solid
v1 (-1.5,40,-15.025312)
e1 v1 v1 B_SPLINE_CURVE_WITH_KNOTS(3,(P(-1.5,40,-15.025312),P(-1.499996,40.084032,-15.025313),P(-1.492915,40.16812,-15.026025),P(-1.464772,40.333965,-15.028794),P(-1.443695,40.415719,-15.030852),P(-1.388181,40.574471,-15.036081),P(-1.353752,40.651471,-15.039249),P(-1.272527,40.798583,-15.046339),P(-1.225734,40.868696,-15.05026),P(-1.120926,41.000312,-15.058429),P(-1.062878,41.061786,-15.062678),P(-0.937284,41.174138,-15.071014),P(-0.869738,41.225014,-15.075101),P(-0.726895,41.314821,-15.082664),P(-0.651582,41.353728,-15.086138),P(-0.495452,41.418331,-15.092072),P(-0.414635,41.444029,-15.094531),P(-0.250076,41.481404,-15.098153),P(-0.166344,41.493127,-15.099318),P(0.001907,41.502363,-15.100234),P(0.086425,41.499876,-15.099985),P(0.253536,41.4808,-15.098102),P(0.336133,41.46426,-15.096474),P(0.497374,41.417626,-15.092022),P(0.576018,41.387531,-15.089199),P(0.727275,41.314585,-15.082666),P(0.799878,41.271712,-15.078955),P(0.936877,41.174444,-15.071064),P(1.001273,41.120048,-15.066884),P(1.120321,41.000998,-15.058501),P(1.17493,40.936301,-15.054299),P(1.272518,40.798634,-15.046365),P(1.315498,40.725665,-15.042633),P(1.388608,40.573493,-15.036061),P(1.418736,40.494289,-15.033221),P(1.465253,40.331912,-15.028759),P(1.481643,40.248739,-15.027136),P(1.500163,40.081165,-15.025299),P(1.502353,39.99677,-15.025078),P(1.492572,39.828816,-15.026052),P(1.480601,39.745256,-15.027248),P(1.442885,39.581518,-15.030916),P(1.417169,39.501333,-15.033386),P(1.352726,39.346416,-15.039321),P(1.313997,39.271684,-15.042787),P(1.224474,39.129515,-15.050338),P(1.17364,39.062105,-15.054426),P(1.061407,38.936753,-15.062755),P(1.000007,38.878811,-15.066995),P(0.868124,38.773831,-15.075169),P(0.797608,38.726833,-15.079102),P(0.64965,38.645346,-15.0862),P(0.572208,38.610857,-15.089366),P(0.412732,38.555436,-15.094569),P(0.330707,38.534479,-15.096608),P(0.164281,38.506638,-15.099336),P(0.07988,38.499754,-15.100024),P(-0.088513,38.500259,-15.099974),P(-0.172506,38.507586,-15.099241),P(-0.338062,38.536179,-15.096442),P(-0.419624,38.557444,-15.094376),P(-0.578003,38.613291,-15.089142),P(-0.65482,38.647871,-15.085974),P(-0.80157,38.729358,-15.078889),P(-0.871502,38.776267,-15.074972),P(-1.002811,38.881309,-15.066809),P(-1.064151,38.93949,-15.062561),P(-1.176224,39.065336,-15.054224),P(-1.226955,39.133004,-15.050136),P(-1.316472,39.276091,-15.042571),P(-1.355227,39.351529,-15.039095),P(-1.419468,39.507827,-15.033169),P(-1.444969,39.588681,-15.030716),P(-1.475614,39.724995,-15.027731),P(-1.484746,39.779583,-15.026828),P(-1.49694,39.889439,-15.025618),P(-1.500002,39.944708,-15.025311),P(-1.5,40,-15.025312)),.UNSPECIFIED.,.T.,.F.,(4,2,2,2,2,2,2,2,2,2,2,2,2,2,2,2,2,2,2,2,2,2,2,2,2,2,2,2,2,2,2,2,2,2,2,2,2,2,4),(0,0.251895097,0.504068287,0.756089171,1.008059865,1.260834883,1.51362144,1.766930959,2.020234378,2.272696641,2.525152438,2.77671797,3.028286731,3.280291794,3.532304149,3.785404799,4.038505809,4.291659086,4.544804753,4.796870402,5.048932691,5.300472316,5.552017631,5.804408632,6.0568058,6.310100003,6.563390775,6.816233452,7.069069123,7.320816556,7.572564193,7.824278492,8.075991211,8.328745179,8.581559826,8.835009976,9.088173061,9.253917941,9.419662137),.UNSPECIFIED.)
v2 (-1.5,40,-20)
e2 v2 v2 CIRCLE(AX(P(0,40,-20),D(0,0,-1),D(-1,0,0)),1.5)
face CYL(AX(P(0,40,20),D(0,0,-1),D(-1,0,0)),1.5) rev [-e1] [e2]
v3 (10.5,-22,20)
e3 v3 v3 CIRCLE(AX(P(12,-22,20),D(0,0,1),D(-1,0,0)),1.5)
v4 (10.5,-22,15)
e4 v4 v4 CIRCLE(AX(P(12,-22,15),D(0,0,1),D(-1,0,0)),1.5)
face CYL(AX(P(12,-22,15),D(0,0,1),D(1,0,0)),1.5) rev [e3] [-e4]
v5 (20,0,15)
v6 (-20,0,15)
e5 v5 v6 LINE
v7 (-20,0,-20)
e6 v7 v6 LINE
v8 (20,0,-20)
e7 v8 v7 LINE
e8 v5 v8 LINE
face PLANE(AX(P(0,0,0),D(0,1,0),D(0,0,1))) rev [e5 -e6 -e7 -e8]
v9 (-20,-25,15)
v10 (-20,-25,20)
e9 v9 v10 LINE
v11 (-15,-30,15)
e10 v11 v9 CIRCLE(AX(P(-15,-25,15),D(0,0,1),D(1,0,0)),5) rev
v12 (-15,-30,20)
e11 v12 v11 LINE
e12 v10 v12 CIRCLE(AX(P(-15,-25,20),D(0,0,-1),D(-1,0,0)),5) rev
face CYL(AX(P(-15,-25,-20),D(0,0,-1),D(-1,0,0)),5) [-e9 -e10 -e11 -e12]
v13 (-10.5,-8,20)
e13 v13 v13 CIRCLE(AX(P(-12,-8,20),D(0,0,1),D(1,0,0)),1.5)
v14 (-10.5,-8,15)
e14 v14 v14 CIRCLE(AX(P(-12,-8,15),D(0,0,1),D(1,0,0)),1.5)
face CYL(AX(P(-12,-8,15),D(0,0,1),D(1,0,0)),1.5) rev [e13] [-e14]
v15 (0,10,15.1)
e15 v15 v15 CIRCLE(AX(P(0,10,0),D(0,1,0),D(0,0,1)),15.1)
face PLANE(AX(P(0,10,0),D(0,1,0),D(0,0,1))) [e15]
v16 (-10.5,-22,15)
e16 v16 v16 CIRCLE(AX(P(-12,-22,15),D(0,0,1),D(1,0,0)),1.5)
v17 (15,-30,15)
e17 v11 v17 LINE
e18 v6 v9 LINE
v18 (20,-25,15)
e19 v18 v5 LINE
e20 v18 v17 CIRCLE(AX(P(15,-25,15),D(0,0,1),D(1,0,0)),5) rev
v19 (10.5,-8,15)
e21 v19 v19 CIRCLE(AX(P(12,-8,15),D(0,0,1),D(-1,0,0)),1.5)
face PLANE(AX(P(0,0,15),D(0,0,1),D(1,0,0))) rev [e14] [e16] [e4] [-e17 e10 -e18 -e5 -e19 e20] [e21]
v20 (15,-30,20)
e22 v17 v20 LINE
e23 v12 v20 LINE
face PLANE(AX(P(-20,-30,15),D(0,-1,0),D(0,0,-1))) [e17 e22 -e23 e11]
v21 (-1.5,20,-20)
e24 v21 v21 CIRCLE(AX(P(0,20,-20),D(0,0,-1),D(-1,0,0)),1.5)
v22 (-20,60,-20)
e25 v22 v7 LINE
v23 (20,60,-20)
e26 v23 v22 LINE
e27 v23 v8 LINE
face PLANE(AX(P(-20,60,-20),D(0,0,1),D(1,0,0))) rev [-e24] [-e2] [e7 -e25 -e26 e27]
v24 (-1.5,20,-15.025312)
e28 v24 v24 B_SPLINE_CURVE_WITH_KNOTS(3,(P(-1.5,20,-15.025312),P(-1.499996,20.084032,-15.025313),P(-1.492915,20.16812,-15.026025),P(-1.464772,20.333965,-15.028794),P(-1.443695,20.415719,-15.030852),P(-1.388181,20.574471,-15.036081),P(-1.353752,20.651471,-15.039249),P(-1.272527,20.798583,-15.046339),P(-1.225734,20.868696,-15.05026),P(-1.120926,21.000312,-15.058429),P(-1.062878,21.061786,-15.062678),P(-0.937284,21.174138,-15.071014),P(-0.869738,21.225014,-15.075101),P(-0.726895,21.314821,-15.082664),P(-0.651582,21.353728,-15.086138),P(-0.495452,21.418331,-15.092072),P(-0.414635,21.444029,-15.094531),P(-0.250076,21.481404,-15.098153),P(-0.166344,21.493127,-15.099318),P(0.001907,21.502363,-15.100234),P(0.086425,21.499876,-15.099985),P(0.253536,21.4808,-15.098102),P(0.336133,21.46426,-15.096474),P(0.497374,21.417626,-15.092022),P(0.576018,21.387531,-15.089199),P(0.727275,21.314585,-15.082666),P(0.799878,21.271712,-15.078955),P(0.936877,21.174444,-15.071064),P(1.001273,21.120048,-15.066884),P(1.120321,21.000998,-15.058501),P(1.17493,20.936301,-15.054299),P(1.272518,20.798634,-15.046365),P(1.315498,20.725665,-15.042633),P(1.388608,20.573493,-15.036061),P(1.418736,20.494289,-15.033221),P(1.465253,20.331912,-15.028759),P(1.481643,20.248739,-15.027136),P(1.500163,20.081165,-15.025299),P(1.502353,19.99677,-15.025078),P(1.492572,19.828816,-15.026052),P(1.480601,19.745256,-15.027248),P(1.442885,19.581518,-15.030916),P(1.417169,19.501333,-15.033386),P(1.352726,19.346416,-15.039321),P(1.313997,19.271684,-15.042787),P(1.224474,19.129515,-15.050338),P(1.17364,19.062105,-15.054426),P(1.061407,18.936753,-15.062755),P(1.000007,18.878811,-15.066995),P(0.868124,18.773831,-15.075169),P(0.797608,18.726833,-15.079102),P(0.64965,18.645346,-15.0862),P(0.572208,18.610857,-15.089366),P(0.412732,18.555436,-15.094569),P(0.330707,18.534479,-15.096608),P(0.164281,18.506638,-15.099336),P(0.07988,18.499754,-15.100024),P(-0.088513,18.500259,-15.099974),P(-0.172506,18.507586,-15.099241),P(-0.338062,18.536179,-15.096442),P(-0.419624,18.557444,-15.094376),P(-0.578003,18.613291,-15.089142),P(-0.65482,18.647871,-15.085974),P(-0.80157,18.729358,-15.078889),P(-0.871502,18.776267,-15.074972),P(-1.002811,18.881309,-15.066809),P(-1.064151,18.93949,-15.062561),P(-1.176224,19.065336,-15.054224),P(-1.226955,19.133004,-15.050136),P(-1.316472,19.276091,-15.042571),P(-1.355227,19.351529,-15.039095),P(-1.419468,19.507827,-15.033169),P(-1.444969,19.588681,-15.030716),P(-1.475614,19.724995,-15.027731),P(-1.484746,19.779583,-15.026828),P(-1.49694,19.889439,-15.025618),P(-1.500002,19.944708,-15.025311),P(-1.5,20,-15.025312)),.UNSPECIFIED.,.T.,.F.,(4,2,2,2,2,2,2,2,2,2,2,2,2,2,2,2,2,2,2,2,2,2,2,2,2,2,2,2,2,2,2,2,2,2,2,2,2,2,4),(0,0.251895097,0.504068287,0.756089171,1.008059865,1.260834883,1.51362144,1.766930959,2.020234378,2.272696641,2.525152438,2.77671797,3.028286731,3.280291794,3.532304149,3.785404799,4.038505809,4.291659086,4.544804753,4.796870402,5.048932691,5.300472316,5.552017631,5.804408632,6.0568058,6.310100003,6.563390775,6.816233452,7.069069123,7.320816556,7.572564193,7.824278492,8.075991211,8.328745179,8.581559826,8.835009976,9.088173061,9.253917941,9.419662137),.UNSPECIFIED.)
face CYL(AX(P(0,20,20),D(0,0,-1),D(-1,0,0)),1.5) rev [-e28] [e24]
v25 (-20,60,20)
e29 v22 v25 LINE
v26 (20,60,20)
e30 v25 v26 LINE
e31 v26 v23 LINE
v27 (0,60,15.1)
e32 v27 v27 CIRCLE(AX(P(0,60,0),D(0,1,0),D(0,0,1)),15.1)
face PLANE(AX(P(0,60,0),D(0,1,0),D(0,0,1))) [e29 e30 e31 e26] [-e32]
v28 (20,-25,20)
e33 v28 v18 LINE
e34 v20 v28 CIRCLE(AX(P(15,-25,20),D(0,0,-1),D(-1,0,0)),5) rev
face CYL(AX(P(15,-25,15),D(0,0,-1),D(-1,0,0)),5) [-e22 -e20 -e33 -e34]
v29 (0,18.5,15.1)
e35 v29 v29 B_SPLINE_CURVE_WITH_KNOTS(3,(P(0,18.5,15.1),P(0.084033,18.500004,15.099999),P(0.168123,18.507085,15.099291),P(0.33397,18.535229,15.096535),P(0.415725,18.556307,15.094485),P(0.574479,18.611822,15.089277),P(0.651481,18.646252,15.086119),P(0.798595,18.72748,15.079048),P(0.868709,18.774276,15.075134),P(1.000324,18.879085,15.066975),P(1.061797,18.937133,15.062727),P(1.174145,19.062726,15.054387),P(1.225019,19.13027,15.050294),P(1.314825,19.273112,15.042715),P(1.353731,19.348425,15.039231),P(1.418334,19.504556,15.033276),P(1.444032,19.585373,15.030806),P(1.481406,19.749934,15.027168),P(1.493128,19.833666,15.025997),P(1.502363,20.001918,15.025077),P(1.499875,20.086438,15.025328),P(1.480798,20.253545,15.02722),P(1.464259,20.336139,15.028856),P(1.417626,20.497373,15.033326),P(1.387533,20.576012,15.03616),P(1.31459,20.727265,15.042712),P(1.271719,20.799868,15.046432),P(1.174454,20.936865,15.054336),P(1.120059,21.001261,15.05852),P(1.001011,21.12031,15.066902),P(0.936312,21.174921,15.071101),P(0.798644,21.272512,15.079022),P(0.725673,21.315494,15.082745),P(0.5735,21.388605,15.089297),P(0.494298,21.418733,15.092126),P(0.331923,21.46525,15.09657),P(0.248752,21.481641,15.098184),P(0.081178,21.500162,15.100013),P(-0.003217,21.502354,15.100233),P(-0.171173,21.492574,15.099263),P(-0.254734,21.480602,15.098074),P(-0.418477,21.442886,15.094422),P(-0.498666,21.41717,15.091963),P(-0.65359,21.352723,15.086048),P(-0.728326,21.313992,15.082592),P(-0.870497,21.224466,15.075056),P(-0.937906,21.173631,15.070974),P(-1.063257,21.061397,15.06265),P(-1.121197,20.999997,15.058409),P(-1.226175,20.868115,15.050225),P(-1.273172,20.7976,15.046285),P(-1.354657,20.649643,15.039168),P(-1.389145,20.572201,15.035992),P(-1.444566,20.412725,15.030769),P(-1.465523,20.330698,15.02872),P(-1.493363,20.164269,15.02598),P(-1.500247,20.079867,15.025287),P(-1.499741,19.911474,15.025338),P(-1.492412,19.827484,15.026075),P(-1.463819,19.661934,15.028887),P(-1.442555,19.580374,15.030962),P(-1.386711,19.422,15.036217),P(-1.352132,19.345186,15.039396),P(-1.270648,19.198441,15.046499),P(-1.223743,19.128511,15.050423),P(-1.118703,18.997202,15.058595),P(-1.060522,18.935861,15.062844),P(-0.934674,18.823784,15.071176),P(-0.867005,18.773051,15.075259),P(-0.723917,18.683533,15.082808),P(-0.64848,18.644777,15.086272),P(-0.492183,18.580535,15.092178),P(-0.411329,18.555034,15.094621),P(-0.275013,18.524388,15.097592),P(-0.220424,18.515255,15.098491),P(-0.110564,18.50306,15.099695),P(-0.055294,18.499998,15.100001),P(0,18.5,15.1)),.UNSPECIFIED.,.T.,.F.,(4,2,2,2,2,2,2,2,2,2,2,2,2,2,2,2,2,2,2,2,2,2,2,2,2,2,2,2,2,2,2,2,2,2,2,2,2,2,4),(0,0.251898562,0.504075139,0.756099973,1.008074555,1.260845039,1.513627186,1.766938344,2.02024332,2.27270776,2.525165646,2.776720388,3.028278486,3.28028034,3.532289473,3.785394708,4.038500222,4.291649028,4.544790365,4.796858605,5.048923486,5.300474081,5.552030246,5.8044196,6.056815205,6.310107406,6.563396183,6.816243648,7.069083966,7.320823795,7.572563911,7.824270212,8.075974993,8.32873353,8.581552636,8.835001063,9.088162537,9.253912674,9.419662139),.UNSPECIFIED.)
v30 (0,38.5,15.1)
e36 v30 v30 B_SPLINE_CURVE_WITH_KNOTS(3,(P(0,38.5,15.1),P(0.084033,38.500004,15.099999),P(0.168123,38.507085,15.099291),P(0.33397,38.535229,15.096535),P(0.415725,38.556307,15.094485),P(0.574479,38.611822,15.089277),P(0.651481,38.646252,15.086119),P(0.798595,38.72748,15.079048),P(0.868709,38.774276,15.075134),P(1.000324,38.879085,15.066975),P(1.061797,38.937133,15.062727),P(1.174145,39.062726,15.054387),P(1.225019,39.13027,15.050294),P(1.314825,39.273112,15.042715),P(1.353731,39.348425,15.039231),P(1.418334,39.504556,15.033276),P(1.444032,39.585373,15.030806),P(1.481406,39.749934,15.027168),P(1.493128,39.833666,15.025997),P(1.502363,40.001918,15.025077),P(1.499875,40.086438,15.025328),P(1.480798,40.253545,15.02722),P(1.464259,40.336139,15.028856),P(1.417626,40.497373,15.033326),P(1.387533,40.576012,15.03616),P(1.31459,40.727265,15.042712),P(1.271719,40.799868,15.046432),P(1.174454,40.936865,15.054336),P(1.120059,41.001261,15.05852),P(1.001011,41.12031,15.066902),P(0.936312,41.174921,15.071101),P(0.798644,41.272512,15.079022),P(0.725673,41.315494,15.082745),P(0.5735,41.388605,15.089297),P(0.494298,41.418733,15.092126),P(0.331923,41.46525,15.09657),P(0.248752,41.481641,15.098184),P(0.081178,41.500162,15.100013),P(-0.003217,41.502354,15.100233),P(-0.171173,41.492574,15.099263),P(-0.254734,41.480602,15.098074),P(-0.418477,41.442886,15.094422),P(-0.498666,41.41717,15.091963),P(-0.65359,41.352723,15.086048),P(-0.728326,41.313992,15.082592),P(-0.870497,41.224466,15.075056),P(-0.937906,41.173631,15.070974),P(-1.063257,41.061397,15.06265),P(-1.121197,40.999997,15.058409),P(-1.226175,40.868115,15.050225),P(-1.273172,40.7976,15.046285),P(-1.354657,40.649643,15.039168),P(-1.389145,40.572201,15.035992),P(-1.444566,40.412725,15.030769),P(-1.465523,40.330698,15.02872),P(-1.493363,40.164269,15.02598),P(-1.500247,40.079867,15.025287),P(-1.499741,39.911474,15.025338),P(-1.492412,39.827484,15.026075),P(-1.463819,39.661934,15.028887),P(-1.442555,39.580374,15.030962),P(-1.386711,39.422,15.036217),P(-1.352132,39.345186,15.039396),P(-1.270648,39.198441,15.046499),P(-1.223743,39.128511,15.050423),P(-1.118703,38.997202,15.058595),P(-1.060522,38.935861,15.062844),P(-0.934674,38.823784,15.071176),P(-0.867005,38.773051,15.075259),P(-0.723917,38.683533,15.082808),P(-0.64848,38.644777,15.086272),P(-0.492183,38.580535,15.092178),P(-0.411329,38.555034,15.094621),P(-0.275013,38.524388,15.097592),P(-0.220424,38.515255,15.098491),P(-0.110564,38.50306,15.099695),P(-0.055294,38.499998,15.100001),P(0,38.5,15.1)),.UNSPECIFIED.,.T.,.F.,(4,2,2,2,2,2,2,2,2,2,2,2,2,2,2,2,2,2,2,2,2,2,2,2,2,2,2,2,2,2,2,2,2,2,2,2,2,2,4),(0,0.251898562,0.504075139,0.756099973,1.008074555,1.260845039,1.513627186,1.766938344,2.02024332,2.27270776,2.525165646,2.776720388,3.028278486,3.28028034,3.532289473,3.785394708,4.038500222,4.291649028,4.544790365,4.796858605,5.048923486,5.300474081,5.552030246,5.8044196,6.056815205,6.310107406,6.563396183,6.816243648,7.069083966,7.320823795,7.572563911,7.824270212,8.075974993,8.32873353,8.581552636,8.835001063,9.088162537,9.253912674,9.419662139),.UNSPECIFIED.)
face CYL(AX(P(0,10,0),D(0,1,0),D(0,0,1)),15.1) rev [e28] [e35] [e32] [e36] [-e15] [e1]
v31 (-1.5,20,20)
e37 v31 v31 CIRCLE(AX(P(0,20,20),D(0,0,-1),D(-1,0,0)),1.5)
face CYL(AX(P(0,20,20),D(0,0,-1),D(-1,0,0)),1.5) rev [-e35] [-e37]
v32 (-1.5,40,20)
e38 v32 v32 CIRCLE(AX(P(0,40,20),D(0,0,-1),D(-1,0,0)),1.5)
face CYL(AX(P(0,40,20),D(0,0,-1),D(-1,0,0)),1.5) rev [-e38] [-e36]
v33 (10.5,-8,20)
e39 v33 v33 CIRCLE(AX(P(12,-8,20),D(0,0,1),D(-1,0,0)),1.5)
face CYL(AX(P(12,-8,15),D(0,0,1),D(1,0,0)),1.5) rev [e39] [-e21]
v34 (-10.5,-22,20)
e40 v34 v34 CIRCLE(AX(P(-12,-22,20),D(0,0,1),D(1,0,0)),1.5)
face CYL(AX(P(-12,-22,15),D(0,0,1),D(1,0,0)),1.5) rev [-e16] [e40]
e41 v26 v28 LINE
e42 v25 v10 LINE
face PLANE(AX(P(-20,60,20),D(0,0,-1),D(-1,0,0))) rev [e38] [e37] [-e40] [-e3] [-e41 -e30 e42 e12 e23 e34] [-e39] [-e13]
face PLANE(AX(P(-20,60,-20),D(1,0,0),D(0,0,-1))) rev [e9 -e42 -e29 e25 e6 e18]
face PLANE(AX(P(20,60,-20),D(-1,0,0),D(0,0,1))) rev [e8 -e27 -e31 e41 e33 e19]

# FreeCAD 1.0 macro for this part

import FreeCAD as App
import Part
import Sketcher


def edges_at(feature, points):
    """Names of the edges that pass closest to the given points."""
    edges = feature.Shape.Edges
    near = lambda p: min(range(len(edges)), key=lambda i: edges[i].distToShape(Part.Vertex(*p))[0])
    return sorted({f"Edge{near(p) + 1}" for p in points})

doc = App.newDocument("Part")
params = doc.addObject("Spreadsheet::Sheet", "Params")
for row, (alias, value) in enumerate([
    ("sketch1_width", "40 mm"),
    ("pad1_length", "60 mm"),
    ("sketch2_diameter", "30.2 mm"),
    ("pocket1_length", "50 mm"),
    ("sketch3_diameter", "3 mm"),
    ("sketch3_width", "40 mm"),
    ("sketch3_height", "30 mm"),
    ("pad2_length", "5 mm"),
    ("fillet_radius", "5 mm"),
    ("sketch4_diameter", "3 mm"),
    ("linearpattern_pitch", "20 mm"),
], start=1):
    params.set(f"A{row}", alias)
    params.set(f"B{row}", "=" + value)
    params.setAlias(f"B{row}", alias)

body = doc.addObject("PartDesign::Body", "Body")

sketch1 = body.newObject("Sketcher::SketchObject", "Sketch")
sketch1.AttachmentSupport = (doc.getObject("XZ_Plane"), [""])
sketch1.MapMode = "FlatFace"
sketch1.addGeometry([
    Part.LineSegment(App.Vector(-20, -20, 0), App.Vector(-20, 20, 0)),
    Part.LineSegment(App.Vector(-20, 20, 0), App.Vector(20, 20, 0)),
    Part.LineSegment(App.Vector(20, 20, 0), App.Vector(20, -20, 0)),
    Part.LineSegment(App.Vector(20, -20, 0), App.Vector(-20, -20, 0)),
], False)
sketch1.addConstraint([
    Sketcher.Constraint("Coincident", 0, 2, 1, 1),
    Sketcher.Constraint("Coincident", 1, 2, 2, 1),
    Sketcher.Constraint("Coincident", 2, 2, 3, 1),
    Sketcher.Constraint("Coincident", 3, 2, 0, 1),
    Sketcher.Constraint("Vertical", 0),
    Sketcher.Constraint("Horizontal", 1),
    Sketcher.Constraint("Vertical", 2),
    Sketcher.Constraint("Horizontal", 3),
    Sketcher.Constraint("Symmetric", 0, 2, 2, 2, -1, 1),
    Sketcher.Constraint("Equal", 3, 0),
    Sketcher.Constraint("DistanceX", 1, 1, 1, 2, 40.0),
])
sketch1.setExpression("Constraints[10]", "Params.sketch1_width")
pad1 = body.newObject("PartDesign::Pad", "Pad")
pad1.Profile = sketch1
pad1.setExpression("Length", "Params.pad1_length")
pad1.Reversed = True

sketch2 = body.newObject("Sketcher::SketchObject", "Sketch001")
sketch2.AttachmentSupport = (doc.getObject("XZ_Plane"), [""])
sketch2.MapMode = "FlatFace"
sketch2.AttachmentOffset = App.Placement(App.Vector(0, 0, -60), App.Rotation())
sketch2.addGeometry(Part.Circle(App.Vector(0, 0, 0), App.Vector(0, 0, 1), 15.1), False)
sketch2.addConstraint([
    Sketcher.Constraint("Coincident", 0, 3, -1, 1),
    Sketcher.Constraint("Diameter", 0, 30.2),
])
sketch2.setExpression("Constraints[1]", "Params.sketch2_diameter")
pocket1 = body.newObject("PartDesign::Pocket", "Pocket")
pocket1.Profile = sketch2
pocket1.setExpression("Length", "Params.pocket1_length")
pocket1.Reversed = True

sketch3 = body.newObject("Sketcher::SketchObject", "Sketch002")
sketch3.AttachmentSupport = (doc.getObject("XY_Plane"), [""])
sketch3.MapMode = "FlatFace"
sketch3.AttachmentOffset = App.Placement(App.Vector(0, 0, 20), App.Rotation())
sketch3.addGeometry([
    Part.LineSegment(App.Vector(-20, 0, 0), App.Vector(-20, -30, 0)),
    Part.LineSegment(App.Vector(-20, -30, 0), App.Vector(20, -30, 0)),
    Part.LineSegment(App.Vector(20, -30, 0), App.Vector(20, 0, 0)),
    Part.LineSegment(App.Vector(20, 0, 0), App.Vector(-20, 0, 0)),
    Part.Circle(App.Vector(-12, -22, 0), App.Vector(0, 0, 1), 1.5),
    Part.Circle(App.Vector(12, -22, 0), App.Vector(0, 0, 1), 1.5),
    Part.Circle(App.Vector(-12, -8, 0), App.Vector(0, 0, 1), 1.5),
    Part.Circle(App.Vector(12, -8, 0), App.Vector(0, 0, 1), 1.5),
], False)
sketch3.addConstraint([
    Sketcher.Constraint("Coincident", 0, 2, 1, 1),
    Sketcher.Constraint("Coincident", 1, 2, 2, 1),
    Sketcher.Constraint("Coincident", 2, 2, 3, 1),
    Sketcher.Constraint("Coincident", 3, 2, 0, 1),
    Sketcher.Constraint("Vertical", 0),
    Sketcher.Constraint("Horizontal", 1),
    Sketcher.Constraint("Vertical", 2),
    Sketcher.Constraint("Horizontal", 3),
    Sketcher.Constraint("Equal", 4, 5),
    Sketcher.Constraint("Equal", 5, 6),
    Sketcher.Constraint("Equal", 6, 7),
    Sketcher.Constraint("Symmetric", 2, 2, 3, 2, -1, 1),
    Sketcher.Constraint("Symmetric", 4, 3, 5, 3, -2),
    Sketcher.Constraint("Symmetric", 6, 3, 7, 3, -2),
    Sketcher.Constraint("Vertical", 4, 3, 6, 3),
    Sketcher.Constraint("Diameter", 4, 3.0),
    Sketcher.Constraint("DistanceX", 1, 1, 1, 2, 40.0),
    Sketcher.Constraint("DistanceY", 0, 2, 0, 1, 30.0),
    Sketcher.Constraint("DistanceX", 4, 3, -1, 1, 12.0),
    Sketcher.Constraint("DistanceY", 4, 3, -1, 1, 22.0),
    Sketcher.Constraint("DistanceY", 6, 3, -1, 1, 8.0),
])
sketch3.setExpression("Constraints[15]", "Params.sketch3_diameter")
sketch3.setExpression("Constraints[16]", "Params.sketch3_width")
sketch3.setExpression("Constraints[17]", "Params.sketch3_height")
pad2 = body.newObject("PartDesign::Pad", "Pad001")
pad2.Profile = sketch3
pad2.setExpression("Length", "Params.pad2_length")
pad2.Reversed = True
doc.recompute()

fillet = body.newObject("PartDesign::Fillet", "Fillet")
fillet.Base = (pad2, edges_at(pad2, [(-20, -30, 17.5), (20, -30, 17.5)]))
fillet.setExpression("Radius", "Params.fillet_radius")

sketch4 = body.newObject("Sketcher::SketchObject", "Sketch003")
sketch4.AttachmentSupport = (doc.getObject("XY_Plane"), [""])
sketch4.MapMode = "FlatFace"
sketch4.AttachmentOffset = App.Placement(App.Vector(0, 0, -20), App.Rotation())
sketch4.addGeometry(Part.Circle(App.Vector(0, 20, 0), App.Vector(0, 0, 1), 1.5), False)
sketch4.addConstraint([
    Sketcher.Constraint("PointOnObject", 0, 3, -2),
    Sketcher.Constraint("Diameter", 0, 3.0),
    Sketcher.Constraint("DistanceY", -1, 1, 0, 3, 20.0),
])
sketch4.setExpression("Constraints[1]", "Params.sketch4_diameter")
pocket2 = body.newObject("PartDesign::Pocket", "Pocket001")
pocket2.Profile = sketch4
pocket2.Type = "ThroughAll"
pocket2.Reversed = True
doc.recompute()

linearpattern = body.newObject("PartDesign::LinearPattern", "LinearPattern")
linearpattern.Originals = [pocket2]
linearpattern.Direction = (doc.getObject("Y_Axis"), [""])
linearpattern.Mode = "offset"
linearpattern.setExpression("Offset", "Params.linearpattern_pitch")
linearpattern.Occurrences = 2
body.Tip = linearpattern

doc.recompute()
